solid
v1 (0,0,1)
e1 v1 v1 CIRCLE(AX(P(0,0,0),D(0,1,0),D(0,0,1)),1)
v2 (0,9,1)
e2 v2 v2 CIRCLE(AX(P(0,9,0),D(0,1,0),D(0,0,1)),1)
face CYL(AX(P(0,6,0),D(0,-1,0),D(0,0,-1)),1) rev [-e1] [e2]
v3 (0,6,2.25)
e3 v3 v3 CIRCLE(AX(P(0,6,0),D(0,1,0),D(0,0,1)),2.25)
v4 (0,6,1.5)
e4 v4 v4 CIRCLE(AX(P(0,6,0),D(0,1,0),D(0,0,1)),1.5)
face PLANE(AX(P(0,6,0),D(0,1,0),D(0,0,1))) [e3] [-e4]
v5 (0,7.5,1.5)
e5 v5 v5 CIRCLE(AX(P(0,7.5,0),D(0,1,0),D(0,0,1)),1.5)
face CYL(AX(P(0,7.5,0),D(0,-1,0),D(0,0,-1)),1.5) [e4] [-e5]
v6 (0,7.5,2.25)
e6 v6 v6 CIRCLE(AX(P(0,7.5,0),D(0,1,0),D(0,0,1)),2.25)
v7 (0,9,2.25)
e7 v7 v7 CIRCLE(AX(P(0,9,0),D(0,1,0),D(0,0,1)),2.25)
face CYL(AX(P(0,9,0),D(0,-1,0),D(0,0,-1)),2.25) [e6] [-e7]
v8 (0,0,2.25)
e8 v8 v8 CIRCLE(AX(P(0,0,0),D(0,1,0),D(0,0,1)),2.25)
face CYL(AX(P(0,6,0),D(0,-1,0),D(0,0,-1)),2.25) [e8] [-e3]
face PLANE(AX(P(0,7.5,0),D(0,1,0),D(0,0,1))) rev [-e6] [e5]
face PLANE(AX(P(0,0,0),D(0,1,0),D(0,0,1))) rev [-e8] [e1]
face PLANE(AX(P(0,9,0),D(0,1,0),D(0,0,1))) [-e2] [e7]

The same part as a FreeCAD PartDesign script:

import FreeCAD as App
import Part
import Sketcher
from FreeCAD import Vector
Q = App.Units.Quantity

doc = App.newDocument("Part")
params = doc.addObject("Spreadsheet::Sheet", "Params")
for row, (alias, value) in enumerate([
    ("sketch1_diameter", "2 mm"),
    ("sketch1_diameter2", "4.5 mm"),
    ("pad1_length", "6 mm"),
    ("sketch2_diameter", "3 mm"),
    ("sketch2_diameter2", "2 mm"),
    ("pad2_length", "1.5 mm"),
    ("sketch3_diameter", "2 mm"),
    ("sketch3_diameter2", "4.5 mm"),
    ("pad3_length", "1.5 mm"),
], start=1):
    params.set(f"A{row}", alias)
    params.set(f"B{row}", "=" + value)
    params.setAlias(f"B{row}", alias)

body = doc.addObject("PartDesign::Body", "Body")

sketch1 = body.newObject("Sketcher::SketchObject", "Sketch")
sketch1.AttachmentSupport = (doc.getObject("XZ_Plane"), [""])
sketch1.MapMode = "FlatFace"
sketch1.addGeometry(Part.Circle(Vector(0, 0, 0), Vector(0, 0, 1), 2.2), False)
sketch1.addGeometry(Part.Circle(Vector(0, 0, 0), Vector(0, 0, 1), 1), False)
sketch1.addConstraint(Sketcher.Constraint("Coincident", 0, 3, -1, 1))
sketch1.addConstraint(Sketcher.Constraint("Coincident", 1, 3, -1, 1))
sketch1.addConstraint(Sketcher.Constraint("Diameter", 1, Q("2 mm")))
sketch1.addConstraint(Sketcher.Constraint("Diameter", 0, Q("4.5 mm")))
sketch1.setExpression("Constraints[2]", "Params.sketch1_diameter")
sketch1.setExpression("Constraints[3]", "Params.sketch1_diameter2")
pad1 = body.newObject("PartDesign::Pad", "Pad")
pad1.Profile = sketch1
pad1.setExpression("Length", "Params.pad1_length")
pad1.Reversed = True

sketch2 = body.newObject("Sketcher::SketchObject", "Sketch001")
sketch2.AttachmentSupport = (doc.getObject("XZ_Plane"), [""])
sketch2.MapMode = "FlatFace"
sketch2.AttachmentOffset = App.Placement(Vector(0, 0, -6), App.Rotation())
sketch2.addGeometry(Part.Circle(Vector(0, 0, 0), Vector(0, 0, 1), 1.5), False)
sketch2.addGeometry(Part.Circle(Vector(0, 0, 0), Vector(0, 0, 1), 1), False)
sketch2.addConstraint(Sketcher.Constraint("Coincident", 0, 3, -1, 1))
sketch2.addConstraint(Sketcher.Constraint("Coincident", 1, 3, -1, 1))
sketch2.addConstraint(Sketcher.Constraint("Diameter", 0, Q("3 mm")))
sketch2.addConstraint(Sketcher.Constraint("Diameter", 1, Q("2 mm")))
sketch2.setExpression("Constraints[2]", "Params.sketch2_diameter")
sketch2.setExpression("Constraints[3]", "Params.sketch2_diameter2")
pad2 = body.newObject("PartDesign::Pad", "Pad001")
pad2.Profile = sketch2
pad2.setExpression("Length", "Params.pad2_length")
pad2.Reversed = True

sketch3 = body.newObject("Sketcher::SketchObject", "Sketch002")
sketch3.AttachmentSupport = (doc.getObject("XZ_Plane"), [""])
sketch3.MapMode = "FlatFace"
sketch3.AttachmentOffset = App.Placement(Vector(0, 0, -7.5), App.Rotation())
sketch3.addGeometry(Part.Circle(Vector(0, 0, 0), Vector(0, 0, 1), 2.2), False)
sketch3.addGeometry(Part.Circle(Vector(0, 0, 0), Vector(0, 0, 1), 1), False)
sketch3.addConstraint(Sketcher.Constraint("Coincident", 0, 3, -1, 1))
sketch3.addConstraint(Sketcher.Constraint("Coincident", 1, 3, -1, 1))
sketch3.addConstraint(Sketcher.Constraint("Diameter", 1, Q("2 mm")))
sketch3.addConstraint(Sketcher.Constraint("Diameter", 0, Q("4.5 mm")))
sketch3.setExpression("Constraints[2]", "Params.sketch3_diameter")
sketch3.setExpression("Constraints[3]", "Params.sketch3_diameter2")
pad3 = body.newObject("PartDesign::Pad", "Pad002")
pad3.Profile = sketch3
pad3.setExpression("Length", "Params.pad3_length")
pad3.Reversed = True

doc.recompute()
